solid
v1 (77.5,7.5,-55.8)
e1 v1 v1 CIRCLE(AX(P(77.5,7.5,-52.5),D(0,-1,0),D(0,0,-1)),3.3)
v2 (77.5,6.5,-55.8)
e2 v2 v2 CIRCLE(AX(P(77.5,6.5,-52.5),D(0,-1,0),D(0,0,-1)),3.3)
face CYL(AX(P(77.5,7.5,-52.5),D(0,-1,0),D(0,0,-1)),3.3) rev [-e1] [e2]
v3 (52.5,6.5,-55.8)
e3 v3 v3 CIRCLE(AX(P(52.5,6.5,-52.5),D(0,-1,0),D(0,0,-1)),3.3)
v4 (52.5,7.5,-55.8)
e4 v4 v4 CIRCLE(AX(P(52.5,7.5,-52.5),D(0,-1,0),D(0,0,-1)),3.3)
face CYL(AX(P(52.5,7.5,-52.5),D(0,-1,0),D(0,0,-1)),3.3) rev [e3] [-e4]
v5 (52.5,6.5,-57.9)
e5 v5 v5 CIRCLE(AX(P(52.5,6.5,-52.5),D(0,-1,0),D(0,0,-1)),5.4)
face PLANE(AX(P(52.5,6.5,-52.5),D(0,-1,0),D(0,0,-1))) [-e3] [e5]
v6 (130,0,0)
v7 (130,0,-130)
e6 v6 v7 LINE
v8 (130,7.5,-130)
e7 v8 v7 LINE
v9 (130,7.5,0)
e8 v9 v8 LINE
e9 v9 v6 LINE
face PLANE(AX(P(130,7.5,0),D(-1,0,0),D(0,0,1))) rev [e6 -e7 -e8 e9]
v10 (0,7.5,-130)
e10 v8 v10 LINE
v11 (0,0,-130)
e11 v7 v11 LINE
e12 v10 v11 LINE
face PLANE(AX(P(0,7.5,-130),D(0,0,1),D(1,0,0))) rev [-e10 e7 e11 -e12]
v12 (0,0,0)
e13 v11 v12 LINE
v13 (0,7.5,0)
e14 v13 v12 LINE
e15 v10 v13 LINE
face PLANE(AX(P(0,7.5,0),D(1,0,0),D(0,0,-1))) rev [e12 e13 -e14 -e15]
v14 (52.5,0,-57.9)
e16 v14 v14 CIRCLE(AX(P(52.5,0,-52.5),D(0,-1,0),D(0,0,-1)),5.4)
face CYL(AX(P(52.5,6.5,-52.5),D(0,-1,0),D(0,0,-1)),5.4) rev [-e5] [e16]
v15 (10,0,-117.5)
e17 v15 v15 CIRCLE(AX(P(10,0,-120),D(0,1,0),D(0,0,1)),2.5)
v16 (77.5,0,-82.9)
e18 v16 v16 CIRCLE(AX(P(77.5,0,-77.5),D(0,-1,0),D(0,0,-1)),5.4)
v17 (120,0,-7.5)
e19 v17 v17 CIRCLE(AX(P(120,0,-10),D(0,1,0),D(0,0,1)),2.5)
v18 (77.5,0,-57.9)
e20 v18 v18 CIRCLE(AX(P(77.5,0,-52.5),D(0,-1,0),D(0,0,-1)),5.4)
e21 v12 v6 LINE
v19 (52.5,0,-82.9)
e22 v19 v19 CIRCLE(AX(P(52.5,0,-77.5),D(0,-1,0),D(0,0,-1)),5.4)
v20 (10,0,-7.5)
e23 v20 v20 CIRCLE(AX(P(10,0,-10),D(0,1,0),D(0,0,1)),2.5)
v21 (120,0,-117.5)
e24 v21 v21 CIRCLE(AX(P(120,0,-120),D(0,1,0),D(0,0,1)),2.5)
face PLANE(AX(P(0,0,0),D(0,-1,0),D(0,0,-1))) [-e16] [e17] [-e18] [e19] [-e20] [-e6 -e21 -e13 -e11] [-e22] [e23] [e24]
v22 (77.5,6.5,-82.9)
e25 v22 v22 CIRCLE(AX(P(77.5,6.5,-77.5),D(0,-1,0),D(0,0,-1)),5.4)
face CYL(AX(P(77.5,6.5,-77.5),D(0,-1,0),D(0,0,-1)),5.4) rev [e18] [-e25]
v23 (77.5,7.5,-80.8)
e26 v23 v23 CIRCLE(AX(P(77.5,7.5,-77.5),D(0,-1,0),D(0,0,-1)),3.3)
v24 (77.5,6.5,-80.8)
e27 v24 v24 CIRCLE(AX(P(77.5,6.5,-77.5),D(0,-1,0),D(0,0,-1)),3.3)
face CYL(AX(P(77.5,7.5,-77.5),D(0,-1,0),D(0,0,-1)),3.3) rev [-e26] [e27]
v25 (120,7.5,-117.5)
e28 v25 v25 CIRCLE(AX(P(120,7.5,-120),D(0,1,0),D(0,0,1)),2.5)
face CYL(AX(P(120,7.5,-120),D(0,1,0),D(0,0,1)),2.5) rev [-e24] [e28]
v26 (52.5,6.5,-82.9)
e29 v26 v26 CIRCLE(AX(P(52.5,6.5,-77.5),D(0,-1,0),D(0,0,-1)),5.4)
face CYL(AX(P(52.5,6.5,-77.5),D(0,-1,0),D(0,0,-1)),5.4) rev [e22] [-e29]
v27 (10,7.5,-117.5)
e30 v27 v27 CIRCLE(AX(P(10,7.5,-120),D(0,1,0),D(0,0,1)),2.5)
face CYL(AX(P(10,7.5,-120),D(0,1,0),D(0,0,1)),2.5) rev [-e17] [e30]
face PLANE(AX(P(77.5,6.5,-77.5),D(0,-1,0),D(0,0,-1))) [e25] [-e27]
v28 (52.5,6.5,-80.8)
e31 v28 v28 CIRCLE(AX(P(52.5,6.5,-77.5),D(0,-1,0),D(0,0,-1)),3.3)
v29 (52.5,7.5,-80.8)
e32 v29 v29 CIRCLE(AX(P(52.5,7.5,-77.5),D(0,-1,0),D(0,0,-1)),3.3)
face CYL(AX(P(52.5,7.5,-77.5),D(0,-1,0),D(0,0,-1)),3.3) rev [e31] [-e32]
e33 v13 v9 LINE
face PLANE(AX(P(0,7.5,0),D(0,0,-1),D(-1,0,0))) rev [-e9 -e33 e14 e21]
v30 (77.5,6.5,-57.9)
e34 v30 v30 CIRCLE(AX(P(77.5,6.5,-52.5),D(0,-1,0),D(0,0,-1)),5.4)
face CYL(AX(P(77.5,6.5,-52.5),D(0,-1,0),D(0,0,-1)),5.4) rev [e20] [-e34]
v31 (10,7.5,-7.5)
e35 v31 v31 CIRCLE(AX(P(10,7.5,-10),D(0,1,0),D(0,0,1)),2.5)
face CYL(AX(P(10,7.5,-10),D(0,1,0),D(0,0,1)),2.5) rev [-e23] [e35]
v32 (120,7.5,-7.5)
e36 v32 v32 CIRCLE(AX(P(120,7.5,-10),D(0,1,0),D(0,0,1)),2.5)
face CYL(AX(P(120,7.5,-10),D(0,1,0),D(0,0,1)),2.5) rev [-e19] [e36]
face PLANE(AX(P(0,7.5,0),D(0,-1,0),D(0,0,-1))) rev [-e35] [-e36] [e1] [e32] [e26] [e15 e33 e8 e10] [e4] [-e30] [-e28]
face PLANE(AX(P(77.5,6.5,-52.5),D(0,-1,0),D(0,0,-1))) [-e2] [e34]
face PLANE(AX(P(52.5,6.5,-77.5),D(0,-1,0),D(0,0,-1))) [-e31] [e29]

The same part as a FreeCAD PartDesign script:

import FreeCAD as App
import Part
import Sketcher

doc = App.newDocument("Part")
body = doc.addObject("PartDesign::Body", "Body")

# Sketch on XZ plane
sketch1 = body.newObject("Sketcher::SketchObject", "Sketch")
sketch1.AttachmentSupport = (doc.getObject("XZ_Plane"), [""])
sketch1.MapMode = "FlatFace"
sketch1.addGeometry([
    Part.LineSegment(App.Vector(0, -130, 0), App.Vector(0, 0, 0)),
    Part.LineSegment(App.Vector(0, 0, 0), App.Vector(130, 0, 0)),
    Part.LineSegment(App.Vector(130, 0, 0), App.Vector(130, -130, 0)),
    Part.LineSegment(App.Vector(130, -130, 0), App.Vector(0, -130, 0)),
], False)
sketch1.addConstraint([
    Sketcher.Constraint("Coincident", 0, 2, 1, 1),
    Sketcher.Constraint("Coincident", 1, 2, 2, 1),
    Sketcher.Constraint("Coincident", 2, 2, 3, 1),
    Sketcher.Constraint("Coincident", 3, 2, 0, 1),
    Sketcher.Constraint("Vertical", 0),
    Sketcher.Constraint("Horizontal", 1),
    Sketcher.Constraint("Vertical", 2),
    Sketcher.Constraint("Horizontal", 3),
    Sketcher.Constraint("Coincident", 0, 2, -1, 1),
    Sketcher.Constraint("Equal", 3, 0),
    Sketcher.Constraint("DistanceX", 1, 1, 1, 2, 130.0),
])
pad1 = body.newObject("PartDesign::Pad", "Pad")
pad1.Profile = sketch1
pad1.Length = 7.5
pad1.Reversed = True

# Sketch on XZ plane
sketch2 = body.newObject("Sketcher::SketchObject", "Sketch001")
sketch2.AttachmentSupport = (doc.getObject("XZ_Plane"), [""])
sketch2.MapMode = "FlatFace"
sketch2.AttachmentOffset = App.Placement(App.Vector(0, 0, -7.5), App.Rotation())
sketch2.addGeometry([
    Part.Circle(App.Vector(10, -120, 0), App.Vector(0, 0, 1), 2.5),
    Part.Circle(App.Vector(120, -120, 0), App.Vector(0, 0, 1), 2.5),
    Part.Circle(App.Vector(120, -10, 0), App.Vector(0, 0, 1), 2.5),
    Part.Circle(App.Vector(10, -10, 0), App.Vector(0, 0, 1), 2.5),
], False)
sketch2.addConstraint([
    Sketcher.Constraint("Equal", 0, 1),
    Sketcher.Constraint("Equal", 1, 2),
    Sketcher.Constraint("Equal", 2, 3),
    Sketcher.Constraint("Horizontal", 0, 3, 1, 3),
    Sketcher.Constraint("Horizontal", 2, 3, 3, 3),
    Sketcher.Constraint("Vertical", 1, 3, 2, 3),
    Sketcher.Constraint("Vertical", 0, 3, 3, 3),
    Sketcher.Constraint("Diameter", 0, 5.0),
    Sketcher.Constraint("DistanceX", -1, 1, 0, 3, 10.0),
    Sketcher.Constraint("DistanceY", 0, 3, -1, 1, 120.0),
    Sketcher.Constraint("DistanceX", -1, 1, 1, 3, 120.0),
    Sketcher.Constraint("DistanceY", 2, 3, -1, 1, 10.0),
])
doc.recompute()
hole = body.newObject("PartDesign::Hole", "Hole")
hole.Profile = sketch2
hole.ThreadType = "None"
hole.Diameter = 5
hole.DepthType = "ThroughAll"
hole.Reversed = True

# Sketch on XZ plane
sketch3 = body.newObject("Sketcher::SketchObject", "Sketch002")
sketch3.AttachmentSupport = (doc.getObject("XZ_Plane"), [""])
sketch3.MapMode = "FlatFace"
sketch3.addGeometry([
    Part.Circle(App.Vector(52, -52, 0), App.Vector(0, 0, 1), 5),
    Part.Circle(App.Vector(78, -52, 0), App.Vector(0, 0, 1), 5),
    Part.Circle(App.Vector(52, -78, 0), App.Vector(0, 0, 1), 5),
    Part.Circle(App.Vector(78, -78, 0), App.Vector(0, 0, 1), 5),
], False)
sketch3.addConstraint([
    Sketcher.Constraint("Equal", 0, 1),
    Sketcher.Constraint("Equal", 1, 2),
    Sketcher.Constraint("Equal", 2, 3),
    Sketcher.Constraint("Horizontal", 0, 3, 1, 3),
    Sketcher.Constraint("Horizontal", 2, 3, 3, 3),
    Sketcher.Constraint("Vertical", 0, 3, 2, 3),
    Sketcher.Constraint("Vertical", 1, 3, 3, 3),
    Sketcher.Constraint("Diameter", 0, 10.8),
    Sketcher.Constraint("DistanceX", 0, 3, 1, 3, 25.0),
    Sketcher.Constraint("DistanceY", 2, 3, 0, 3, 25.0),
    Sketcher.Constraint("DistanceX", -1, 1, 0, 3, 52.5),
    Sketcher.Constraint("DistanceY", 0, 3, -1, 1, 52.5),
])
pocket1 = body.newObject("PartDesign::Pocket", "Pocket")
pocket1.Profile = sketch3
pocket1.Length = 6.5

# Sketch on XZ plane
sketch4 = body.newObject("Sketcher::SketchObject", "Sketch003")
sketch4.AttachmentSupport = (doc.getObject("XZ_Plane"), [""])
sketch4.MapMode = "FlatFace"
sketch4.AttachmentOffset = App.Placement(App.Vector(0, 0, -6.5), App.Rotation())
sketch4.addGeometry([
    Part.Circle(App.Vector(52.5, -52.5, 0), App.Vector(0, 0, 1), 3.3),
    Part.Circle(App.Vector(77.5, -52.5, 0), App.Vector(0, 0, 1), 3.3),
    Part.Circle(App.Vector(77.5, -77.5, 0), App.Vector(0, 0, 1), 3.3),
    Part.Circle(App.Vector(52.5, -77.5, 0), App.Vector(0, 0, 1), 3.3),
], False)
sketch4.addConstraint([
    Sketcher.Constraint("Equal", 0, 1),
    Sketcher.Constraint("Equal", 1, 2),
    Sketcher.Constraint("Equal", 2, 3),
    Sketcher.Constraint("Horizontal", 0, 3, 1, 3),
    Sketcher.Constraint("Horizontal", 2, 3, 3, 3),
    Sketcher.Constraint("Vertical", 1, 3, 2, 3),
    Sketcher.Constraint("Vertical", 0, 3, 3, 3),
    Sketcher.Constraint("Diameter", 0, 6.6),
    Sketcher.Constraint("DistanceX", 0, 3, 1, 3, 25.0),
    Sketcher.Constraint("DistanceY", 2, 3, 1, 3, 25.0),
    Sketcher.Constraint("DistanceX", -1, 1, 0, 3, 52.5),
    Sketcher.Constraint("DistanceY", 0, 3, -1, 1, 52.5),
])
pocket2 = body.newObject("PartDesign::Pocket", "Pocket001")
pocket2.Profile = sketch4
pocket2.Type = "ThroughAll"

doc.recompute()
